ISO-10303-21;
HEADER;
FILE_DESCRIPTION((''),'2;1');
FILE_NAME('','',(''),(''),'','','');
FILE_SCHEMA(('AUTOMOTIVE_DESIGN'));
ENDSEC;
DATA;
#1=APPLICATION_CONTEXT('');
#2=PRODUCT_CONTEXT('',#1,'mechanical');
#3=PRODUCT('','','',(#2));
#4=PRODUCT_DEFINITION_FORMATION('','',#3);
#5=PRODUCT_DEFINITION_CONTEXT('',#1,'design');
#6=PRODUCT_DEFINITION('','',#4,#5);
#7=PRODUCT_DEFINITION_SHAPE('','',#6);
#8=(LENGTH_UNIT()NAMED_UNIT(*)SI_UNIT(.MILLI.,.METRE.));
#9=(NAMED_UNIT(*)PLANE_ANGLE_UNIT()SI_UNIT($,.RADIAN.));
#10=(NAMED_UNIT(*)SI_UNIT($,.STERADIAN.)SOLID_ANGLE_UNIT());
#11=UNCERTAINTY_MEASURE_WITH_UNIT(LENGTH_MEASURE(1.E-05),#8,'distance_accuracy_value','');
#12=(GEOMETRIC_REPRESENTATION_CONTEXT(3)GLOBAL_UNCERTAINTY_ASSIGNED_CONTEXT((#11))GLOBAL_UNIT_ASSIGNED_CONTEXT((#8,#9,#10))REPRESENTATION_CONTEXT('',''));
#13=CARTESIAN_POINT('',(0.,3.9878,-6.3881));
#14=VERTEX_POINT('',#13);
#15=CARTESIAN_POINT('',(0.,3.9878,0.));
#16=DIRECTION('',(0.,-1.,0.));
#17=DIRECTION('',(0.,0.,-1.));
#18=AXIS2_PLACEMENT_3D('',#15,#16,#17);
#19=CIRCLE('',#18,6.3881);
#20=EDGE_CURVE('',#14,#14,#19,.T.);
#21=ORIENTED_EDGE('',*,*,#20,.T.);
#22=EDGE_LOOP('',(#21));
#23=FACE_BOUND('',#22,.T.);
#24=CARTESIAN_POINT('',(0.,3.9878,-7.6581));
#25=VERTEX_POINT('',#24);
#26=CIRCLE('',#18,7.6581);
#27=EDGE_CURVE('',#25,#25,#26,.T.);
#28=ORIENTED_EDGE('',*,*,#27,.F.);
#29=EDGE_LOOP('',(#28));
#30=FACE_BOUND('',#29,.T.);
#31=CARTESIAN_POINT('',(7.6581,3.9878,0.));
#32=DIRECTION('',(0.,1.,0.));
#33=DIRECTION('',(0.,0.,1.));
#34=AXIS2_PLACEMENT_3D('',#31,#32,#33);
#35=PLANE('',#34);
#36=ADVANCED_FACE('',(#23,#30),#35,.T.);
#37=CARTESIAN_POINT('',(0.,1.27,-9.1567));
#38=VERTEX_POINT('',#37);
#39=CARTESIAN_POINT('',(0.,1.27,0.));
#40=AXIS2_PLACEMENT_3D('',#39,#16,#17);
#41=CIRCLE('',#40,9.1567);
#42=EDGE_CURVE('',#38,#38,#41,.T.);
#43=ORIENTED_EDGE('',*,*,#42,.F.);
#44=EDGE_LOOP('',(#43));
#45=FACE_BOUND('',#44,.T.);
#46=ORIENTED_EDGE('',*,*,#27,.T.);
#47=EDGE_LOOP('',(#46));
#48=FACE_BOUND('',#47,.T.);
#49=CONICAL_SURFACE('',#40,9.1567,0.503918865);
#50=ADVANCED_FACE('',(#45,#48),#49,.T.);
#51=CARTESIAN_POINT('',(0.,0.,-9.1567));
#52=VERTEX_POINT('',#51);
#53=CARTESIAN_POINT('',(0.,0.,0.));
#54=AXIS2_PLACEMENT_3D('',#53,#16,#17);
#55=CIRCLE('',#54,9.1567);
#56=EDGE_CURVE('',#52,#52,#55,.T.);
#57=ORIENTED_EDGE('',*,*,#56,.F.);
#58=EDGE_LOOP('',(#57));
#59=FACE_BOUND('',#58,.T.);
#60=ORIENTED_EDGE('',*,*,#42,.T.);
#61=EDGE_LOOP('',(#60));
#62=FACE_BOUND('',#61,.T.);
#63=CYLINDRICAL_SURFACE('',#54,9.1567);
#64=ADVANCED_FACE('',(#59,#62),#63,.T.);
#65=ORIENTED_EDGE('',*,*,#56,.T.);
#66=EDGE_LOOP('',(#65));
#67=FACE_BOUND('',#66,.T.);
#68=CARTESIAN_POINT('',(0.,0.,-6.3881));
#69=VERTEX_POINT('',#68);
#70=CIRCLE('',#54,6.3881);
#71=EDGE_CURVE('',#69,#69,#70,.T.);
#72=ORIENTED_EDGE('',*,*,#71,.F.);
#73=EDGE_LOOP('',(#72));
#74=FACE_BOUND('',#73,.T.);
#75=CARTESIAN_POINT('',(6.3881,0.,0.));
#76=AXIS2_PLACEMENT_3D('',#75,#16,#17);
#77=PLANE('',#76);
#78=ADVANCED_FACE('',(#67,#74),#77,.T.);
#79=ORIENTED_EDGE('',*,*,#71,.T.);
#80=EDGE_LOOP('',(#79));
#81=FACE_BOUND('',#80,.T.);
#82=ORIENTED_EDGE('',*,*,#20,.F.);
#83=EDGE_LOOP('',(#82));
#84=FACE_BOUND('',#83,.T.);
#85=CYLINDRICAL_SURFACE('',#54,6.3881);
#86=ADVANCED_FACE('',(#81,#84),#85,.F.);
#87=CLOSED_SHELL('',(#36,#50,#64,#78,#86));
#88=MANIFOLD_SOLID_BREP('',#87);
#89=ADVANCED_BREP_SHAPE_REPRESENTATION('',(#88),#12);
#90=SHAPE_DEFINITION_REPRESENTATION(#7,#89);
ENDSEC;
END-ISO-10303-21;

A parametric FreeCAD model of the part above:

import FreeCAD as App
import Part
import Sketcher
from FreeCAD import Vector
Q = App.Units.Quantity

doc = App.newDocument("Part")
body = doc.addObject("PartDesign::Body", "Body")

sketch1 = body.newObject("Sketcher::SketchObject", "Sketch")
sketch1.AttachmentSupport = (doc.getObject("XY_Plane"), [""])
sketch1.MapMode = "FlatFace"
sketch1.addGeometry([
    Part.LineSegment(Vector(6.3881, 0, 0), Vector(9.1567, 0, 0)),
    Part.LineSegment(Vector(9.1567, 0, 0), Vector(9.1567, 1.27, 0)),
    Part.LineSegment(Vector(9.1567, 1.27, 0), Vector(7.6581, 3.9878, 0)),
    Part.LineSegment(Vector(7.6581, 3.9878, 0), Vector(6.3881, 3.9878, 0)),
    Part.LineSegment(Vector(6.3881, 3.9878, 0), Vector(6.3881, 0, 0)),
], False)
sketch1.addConstraint([
    Sketcher.Constraint("Coincident", 0, 2, 1, 1),
    Sketcher.Constraint("Coincident", 1, 2, 2, 1),
    Sketcher.Constraint("Coincident", 2, 2, 3, 1),
    Sketcher.Constraint("Coincident", 3, 2, 4, 1),
    Sketcher.Constraint("Coincident", 4, 2, 0, 1),
    Sketcher.Constraint("Horizontal", 0),
    Sketcher.Constraint("Vertical", 1),
    Sketcher.Constraint("Horizontal", 3),
    Sketcher.Constraint("Vertical", 4),
    Sketcher.Constraint("PointOnObject", 0, 2, -1),
    Sketcher.Constraint("Equal", 3, 1),
    Sketcher.Constraint("DistanceX", 3, 2, 3, 1, Q("0.05 in")),
    Sketcher.Constraint("DistanceX", 0, 1, 0, 2, Q("0.109 in")),
    Sketcher.Constraint("DistanceY", 4, 2, 4, 1, Q("0.157 in")),
    Sketcher.Constraint("DistanceX", -1, 1, 0, 2, Q("0.3605 in")),
])
revolution = body.newObject("PartDesign::Revolution", "Revolution")
revolution.Profile = sketch1
revolution.ReferenceAxis = (sketch1, ["V_Axis"])
revolution.Angle = 360

doc.recompute()
